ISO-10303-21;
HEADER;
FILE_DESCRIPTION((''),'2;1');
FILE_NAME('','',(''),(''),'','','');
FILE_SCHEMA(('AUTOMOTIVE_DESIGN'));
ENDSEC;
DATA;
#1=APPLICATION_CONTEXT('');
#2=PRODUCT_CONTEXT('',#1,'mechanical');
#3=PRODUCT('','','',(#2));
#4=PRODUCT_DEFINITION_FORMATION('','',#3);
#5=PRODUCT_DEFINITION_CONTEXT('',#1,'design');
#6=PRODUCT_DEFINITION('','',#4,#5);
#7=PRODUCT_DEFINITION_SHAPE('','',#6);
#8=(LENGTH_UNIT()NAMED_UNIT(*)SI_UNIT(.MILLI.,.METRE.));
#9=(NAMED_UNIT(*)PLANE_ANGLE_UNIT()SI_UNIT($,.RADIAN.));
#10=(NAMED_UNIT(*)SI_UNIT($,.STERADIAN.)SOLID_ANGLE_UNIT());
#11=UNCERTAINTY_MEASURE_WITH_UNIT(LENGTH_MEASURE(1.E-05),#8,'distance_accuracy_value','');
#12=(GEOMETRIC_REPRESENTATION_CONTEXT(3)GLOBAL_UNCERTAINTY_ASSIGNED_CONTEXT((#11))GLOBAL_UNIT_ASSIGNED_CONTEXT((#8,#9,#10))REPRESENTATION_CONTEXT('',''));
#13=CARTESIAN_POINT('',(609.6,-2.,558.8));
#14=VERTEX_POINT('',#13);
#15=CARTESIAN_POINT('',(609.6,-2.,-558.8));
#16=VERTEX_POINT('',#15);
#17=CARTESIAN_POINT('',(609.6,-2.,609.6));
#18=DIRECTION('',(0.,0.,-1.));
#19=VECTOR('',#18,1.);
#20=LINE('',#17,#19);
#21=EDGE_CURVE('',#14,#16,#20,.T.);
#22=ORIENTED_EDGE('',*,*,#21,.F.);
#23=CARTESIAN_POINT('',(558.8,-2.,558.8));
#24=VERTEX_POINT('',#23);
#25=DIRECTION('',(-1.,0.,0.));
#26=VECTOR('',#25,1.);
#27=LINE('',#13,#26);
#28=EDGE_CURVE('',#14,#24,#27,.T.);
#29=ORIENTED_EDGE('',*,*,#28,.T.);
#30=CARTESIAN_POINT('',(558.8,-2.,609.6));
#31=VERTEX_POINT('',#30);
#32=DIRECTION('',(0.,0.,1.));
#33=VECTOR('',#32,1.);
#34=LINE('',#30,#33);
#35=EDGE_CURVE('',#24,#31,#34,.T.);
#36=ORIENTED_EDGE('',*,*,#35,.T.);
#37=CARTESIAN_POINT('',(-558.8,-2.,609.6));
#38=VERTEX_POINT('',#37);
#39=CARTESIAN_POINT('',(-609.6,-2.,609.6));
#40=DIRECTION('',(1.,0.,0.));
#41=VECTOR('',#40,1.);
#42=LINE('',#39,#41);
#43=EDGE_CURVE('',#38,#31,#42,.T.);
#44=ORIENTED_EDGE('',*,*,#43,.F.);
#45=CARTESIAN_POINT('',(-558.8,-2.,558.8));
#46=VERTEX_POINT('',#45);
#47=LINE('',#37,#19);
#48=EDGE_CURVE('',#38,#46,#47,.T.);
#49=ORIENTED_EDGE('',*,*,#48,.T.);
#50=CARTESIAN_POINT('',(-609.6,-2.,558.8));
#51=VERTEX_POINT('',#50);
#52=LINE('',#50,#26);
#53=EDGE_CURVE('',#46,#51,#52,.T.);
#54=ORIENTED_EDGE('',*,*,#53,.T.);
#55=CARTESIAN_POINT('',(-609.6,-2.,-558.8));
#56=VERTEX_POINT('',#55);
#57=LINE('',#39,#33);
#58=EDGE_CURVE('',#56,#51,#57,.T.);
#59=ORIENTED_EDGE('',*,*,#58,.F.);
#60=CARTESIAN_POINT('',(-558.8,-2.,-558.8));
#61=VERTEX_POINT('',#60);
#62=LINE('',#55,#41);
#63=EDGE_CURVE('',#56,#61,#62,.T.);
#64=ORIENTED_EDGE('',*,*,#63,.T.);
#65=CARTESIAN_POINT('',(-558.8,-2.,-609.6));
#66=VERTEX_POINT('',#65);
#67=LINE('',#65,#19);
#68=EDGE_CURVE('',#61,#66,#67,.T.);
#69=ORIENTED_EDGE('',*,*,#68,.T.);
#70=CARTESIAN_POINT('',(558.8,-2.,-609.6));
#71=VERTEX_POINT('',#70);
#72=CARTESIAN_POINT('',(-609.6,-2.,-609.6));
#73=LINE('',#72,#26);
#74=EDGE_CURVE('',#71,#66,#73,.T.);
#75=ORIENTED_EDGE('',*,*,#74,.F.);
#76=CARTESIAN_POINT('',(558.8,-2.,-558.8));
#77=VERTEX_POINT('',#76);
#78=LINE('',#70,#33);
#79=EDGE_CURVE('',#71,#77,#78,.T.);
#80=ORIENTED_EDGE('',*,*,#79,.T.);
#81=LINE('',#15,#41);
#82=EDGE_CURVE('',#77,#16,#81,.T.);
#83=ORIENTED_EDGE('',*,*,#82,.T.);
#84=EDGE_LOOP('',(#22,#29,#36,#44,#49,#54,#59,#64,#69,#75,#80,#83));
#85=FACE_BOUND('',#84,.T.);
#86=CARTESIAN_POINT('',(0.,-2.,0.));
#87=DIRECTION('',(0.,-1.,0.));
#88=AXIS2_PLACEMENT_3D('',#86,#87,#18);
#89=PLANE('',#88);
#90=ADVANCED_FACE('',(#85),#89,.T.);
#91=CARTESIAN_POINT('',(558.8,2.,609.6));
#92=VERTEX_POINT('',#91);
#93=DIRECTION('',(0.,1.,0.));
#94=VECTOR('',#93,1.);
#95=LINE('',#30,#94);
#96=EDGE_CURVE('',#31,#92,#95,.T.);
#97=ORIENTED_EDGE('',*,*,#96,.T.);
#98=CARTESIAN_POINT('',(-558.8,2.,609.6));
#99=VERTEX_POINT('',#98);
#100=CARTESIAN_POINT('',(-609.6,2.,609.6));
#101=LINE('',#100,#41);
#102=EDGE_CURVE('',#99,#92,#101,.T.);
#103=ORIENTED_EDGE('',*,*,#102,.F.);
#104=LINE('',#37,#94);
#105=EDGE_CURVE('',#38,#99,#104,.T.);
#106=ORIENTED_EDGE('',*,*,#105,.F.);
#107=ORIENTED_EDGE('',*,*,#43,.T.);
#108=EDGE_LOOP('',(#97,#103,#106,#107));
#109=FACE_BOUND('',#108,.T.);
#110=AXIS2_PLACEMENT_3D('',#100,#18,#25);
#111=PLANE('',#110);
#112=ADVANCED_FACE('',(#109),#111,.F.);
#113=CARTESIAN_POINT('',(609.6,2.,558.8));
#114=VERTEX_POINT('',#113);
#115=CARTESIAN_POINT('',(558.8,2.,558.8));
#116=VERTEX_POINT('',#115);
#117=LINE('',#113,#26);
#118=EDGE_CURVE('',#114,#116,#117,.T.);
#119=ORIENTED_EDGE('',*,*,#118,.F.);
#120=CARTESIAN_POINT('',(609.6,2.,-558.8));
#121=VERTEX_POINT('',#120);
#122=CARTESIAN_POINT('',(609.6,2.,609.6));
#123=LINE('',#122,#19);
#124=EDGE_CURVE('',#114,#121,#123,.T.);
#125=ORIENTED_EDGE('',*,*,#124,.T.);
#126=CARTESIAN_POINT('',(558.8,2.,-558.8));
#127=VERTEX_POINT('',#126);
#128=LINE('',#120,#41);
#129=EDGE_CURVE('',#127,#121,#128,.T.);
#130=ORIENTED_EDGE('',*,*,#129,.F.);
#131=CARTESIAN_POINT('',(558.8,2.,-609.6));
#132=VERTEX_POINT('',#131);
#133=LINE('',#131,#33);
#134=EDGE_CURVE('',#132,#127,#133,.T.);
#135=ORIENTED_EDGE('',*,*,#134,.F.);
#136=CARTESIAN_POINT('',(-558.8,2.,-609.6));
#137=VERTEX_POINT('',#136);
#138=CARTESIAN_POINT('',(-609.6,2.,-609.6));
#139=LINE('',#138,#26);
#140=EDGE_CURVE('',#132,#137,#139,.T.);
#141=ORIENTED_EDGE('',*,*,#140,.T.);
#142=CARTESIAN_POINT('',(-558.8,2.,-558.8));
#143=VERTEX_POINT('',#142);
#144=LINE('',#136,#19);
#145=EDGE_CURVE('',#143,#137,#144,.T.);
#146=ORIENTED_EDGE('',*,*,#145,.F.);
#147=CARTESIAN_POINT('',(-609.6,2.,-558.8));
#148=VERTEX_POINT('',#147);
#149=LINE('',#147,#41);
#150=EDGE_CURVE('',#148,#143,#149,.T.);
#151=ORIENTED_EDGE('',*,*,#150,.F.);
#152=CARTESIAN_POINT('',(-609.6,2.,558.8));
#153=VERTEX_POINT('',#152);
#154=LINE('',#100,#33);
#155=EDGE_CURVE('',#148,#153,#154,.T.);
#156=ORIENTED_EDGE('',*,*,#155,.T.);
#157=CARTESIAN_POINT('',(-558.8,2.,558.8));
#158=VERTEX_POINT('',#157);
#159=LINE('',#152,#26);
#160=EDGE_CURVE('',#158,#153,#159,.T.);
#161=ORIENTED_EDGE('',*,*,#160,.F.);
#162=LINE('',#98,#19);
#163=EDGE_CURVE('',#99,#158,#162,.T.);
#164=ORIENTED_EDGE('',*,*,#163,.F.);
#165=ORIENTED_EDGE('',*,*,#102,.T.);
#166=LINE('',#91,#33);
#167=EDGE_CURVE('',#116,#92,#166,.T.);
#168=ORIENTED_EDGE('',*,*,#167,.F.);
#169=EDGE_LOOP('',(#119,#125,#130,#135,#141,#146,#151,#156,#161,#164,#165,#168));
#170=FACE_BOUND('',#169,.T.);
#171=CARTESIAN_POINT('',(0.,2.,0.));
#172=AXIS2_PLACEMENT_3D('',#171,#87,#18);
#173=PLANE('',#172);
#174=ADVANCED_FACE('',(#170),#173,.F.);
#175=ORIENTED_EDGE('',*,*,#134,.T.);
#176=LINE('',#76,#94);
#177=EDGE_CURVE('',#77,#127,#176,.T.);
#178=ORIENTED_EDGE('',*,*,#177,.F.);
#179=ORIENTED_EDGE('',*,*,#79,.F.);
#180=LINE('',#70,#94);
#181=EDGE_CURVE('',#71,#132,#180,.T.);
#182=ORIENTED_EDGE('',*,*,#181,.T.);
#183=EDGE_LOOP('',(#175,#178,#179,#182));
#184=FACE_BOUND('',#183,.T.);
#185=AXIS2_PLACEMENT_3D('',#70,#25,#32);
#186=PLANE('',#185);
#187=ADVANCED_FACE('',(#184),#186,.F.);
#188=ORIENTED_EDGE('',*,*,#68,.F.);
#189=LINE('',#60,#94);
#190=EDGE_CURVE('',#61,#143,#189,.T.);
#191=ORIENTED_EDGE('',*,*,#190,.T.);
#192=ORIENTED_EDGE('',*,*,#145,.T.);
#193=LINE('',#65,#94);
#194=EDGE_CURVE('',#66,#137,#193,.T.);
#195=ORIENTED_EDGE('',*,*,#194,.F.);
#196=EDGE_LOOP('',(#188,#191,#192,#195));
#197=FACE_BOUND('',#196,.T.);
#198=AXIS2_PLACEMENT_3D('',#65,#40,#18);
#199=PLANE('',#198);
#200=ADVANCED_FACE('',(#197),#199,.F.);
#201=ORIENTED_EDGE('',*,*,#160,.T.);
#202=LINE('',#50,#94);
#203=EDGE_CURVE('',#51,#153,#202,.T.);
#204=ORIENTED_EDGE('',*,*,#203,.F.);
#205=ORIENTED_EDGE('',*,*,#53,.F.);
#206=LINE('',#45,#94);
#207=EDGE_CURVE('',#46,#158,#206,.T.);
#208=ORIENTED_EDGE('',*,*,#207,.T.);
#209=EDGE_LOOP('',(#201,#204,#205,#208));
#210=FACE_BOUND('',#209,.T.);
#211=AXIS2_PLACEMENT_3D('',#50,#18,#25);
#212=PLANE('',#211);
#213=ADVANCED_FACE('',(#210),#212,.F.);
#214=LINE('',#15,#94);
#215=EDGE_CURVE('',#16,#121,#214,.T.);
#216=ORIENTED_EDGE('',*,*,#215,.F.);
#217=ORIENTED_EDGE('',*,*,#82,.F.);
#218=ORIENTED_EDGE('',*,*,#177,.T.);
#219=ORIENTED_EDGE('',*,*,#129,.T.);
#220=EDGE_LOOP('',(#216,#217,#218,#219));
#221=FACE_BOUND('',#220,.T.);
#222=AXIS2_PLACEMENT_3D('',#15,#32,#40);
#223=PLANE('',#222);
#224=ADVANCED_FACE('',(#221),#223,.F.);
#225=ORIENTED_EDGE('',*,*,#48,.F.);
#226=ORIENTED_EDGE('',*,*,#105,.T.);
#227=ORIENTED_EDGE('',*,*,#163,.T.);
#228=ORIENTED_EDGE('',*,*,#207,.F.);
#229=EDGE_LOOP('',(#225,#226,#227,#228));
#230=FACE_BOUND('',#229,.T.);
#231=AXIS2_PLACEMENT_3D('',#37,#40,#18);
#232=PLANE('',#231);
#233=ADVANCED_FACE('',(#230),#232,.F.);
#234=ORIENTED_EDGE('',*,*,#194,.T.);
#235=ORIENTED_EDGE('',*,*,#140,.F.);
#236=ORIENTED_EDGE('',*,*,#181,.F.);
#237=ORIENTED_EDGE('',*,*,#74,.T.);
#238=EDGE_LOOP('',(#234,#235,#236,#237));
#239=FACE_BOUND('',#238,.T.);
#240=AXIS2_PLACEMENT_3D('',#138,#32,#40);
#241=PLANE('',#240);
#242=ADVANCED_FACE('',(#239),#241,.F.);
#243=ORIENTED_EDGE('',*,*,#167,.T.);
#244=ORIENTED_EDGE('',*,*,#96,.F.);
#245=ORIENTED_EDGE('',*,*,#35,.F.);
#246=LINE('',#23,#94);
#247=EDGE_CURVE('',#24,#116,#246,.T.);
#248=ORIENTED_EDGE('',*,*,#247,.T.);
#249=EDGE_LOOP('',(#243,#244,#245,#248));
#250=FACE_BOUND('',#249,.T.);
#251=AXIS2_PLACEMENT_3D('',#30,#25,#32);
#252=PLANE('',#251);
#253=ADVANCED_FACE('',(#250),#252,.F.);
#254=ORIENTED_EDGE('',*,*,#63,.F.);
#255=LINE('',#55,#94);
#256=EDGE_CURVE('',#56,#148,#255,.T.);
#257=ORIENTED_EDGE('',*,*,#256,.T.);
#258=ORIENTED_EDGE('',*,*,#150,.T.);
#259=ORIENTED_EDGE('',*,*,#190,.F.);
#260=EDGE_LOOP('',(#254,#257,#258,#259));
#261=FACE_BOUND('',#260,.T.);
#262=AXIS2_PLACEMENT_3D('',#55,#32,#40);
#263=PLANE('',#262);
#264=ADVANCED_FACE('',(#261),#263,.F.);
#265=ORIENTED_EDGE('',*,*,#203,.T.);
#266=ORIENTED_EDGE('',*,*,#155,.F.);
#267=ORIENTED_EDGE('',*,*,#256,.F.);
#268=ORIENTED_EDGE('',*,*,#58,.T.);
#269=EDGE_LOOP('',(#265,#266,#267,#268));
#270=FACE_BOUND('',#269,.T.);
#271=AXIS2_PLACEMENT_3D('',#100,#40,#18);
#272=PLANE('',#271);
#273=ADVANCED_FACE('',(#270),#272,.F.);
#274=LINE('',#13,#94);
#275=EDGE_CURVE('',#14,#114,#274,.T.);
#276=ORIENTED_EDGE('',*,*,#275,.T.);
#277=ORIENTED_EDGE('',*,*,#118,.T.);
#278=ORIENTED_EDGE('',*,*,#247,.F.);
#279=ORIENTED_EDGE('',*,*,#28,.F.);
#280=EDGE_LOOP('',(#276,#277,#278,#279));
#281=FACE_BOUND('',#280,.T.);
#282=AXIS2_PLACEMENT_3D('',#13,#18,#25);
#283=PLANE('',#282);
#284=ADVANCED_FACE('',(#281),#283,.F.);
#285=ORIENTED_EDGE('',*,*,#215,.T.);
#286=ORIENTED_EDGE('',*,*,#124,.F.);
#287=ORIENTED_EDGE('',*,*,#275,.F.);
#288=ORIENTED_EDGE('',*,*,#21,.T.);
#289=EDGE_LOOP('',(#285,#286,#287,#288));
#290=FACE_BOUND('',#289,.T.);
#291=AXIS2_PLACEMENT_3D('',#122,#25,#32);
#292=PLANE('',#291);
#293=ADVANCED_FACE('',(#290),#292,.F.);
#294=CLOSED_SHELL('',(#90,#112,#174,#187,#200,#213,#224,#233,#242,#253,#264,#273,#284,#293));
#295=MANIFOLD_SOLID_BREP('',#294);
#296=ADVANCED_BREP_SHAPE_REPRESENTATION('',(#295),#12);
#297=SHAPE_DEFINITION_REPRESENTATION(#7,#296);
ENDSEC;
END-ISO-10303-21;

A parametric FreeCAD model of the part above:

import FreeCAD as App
import Part
import Sketcher

V = App.Vector
Q = App.Units.Quantity


def add_polygon(sketch, points):
    """Adds a closed chain of lines whose ends are joined by coincident constraints."""
    first, n = sketch.GeometryCount, len(points)
    for a, b in zip(points, points[1:] + points[:1]):
        sketch.addGeometry(Part.LineSegment(App.Vector(*a, 0), App.Vector(*b, 0)), False)
    for i in range(n):
        sketch.addConstraint(Sketcher.Constraint("Coincident", first + i, 2, first + (i + 1) % n, 1))

doc = App.newDocument("Part")
body = doc.addObject("PartDesign::Body", "Body")

sketch1 = doc.addObject("Sketcher::SketchObject", "Sketch")
body.addObject(sketch1)
sketch1.AttachmentSupport = (doc.XZ_Plane, [""])
sketch1.MapMode = "FlatFace"
add_polygon(sketch1, [(-610, -610), (-610, 610), (610, 610), (610, -610)])
sketch1.addConstraint([
    Sketcher.Constraint("Vertical", 0),
    Sketcher.Constraint("Horizontal", 1),
    Sketcher.Constraint("Vertical", 2),
    Sketcher.Constraint("Horizontal", 3),
    Sketcher.Constraint("Symmetric", 0, 2, 2, 2, -1, 1),
    Sketcher.Constraint("Equal", 3, 0),
    Sketcher.Constraint("DistanceX", 1, 1, 1, 2, Q("48 in")),
])
pad1 = doc.addObject("PartDesign::Pad", "Pad")
body.addObject(pad1)
pad1.Profile = sketch1
pad1.Length = 4
pad1.Midplane = True

sketch2 = doc.addObject("Sketcher::SketchObject", "Sketch001")
body.addObject(sketch2)
sketch2.AttachmentSupport = (doc.XZ_Plane, [""])
sketch2.MapMode = "FlatFace"
sketch2.AttachmentOffset = App.Placement(V(0, 0, -2), App.Rotation())
add_polygon(sketch2, [(-610, -610), (-610, -559), (-559, -559), (-559, -610)])
add_polygon(sketch2, [(559, -610), (559, -559), (610, -559), (610, -610)])
add_polygon(sketch2, [(559, 559), (559, 610), (610, 610), (610, 559)])
add_polygon(sketch2, [(-610, 559), (-610, 610), (-559, 610), (-559, 559)])
sketch2.addConstraint([
    Sketcher.Constraint("Vertical", 0),
    Sketcher.Constraint("Horizontal", 1),
    Sketcher.Constraint("Vertical", 2),
    Sketcher.Constraint("Horizontal", 3),
    Sketcher.Constraint("Vertical", 4),
    Sketcher.Constraint("Horizontal", 5),
    Sketcher.Constraint("Vertical", 6),
    Sketcher.Constraint("Horizontal", 7),
    Sketcher.Constraint("Vertical", 8),
    Sketcher.Constraint("Horizontal", 9),
    Sketcher.Constraint("Vertical", 10),
    Sketcher.Constraint("Horizontal", 11),
    Sketcher.Constraint("Vertical", 12),
    Sketcher.Constraint("Horizontal", 13),
    Sketcher.Constraint("Vertical", 14),
    Sketcher.Constraint("Horizontal", 15),
    Sketcher.Constraint("Symmetric", 2, 2, 8, 2, -1, 1),
    Sketcher.Constraint("Symmetric", 0, 2, 10, 2, -1, 1),
    Sketcher.Constraint("Symmetric", 6, 2, 12, 2, -1, 1),
    Sketcher.Constraint("Symmetric", 4, 2, 14, 2, -1, 1),
    Sketcher.Constraint("Symmetric", 1, 2, 4, 2, -2),
    Sketcher.Constraint("Symmetric", 3, 2, 6, 2, -2),
    Sketcher.Constraint("Equal", 15, 0),
    Sketcher.Constraint("DistanceX", 1, 1, 1, 2, Q("2 in")),
    Sketcher.Constraint("DistanceX", 0, 2, -1, 1, Q("24 in")),
    Sketcher.Constraint("DistanceY", 0, 2, -1, 1, Q("22 in")),
])
pocket1 = doc.addObject("PartDesign::Pocket", "Pocket")
body.addObject(pocket1)
pocket1.Profile = sketch2
pocket1.Type = "ThroughAll"
pocket1.Reversed = True

doc.recompute()
